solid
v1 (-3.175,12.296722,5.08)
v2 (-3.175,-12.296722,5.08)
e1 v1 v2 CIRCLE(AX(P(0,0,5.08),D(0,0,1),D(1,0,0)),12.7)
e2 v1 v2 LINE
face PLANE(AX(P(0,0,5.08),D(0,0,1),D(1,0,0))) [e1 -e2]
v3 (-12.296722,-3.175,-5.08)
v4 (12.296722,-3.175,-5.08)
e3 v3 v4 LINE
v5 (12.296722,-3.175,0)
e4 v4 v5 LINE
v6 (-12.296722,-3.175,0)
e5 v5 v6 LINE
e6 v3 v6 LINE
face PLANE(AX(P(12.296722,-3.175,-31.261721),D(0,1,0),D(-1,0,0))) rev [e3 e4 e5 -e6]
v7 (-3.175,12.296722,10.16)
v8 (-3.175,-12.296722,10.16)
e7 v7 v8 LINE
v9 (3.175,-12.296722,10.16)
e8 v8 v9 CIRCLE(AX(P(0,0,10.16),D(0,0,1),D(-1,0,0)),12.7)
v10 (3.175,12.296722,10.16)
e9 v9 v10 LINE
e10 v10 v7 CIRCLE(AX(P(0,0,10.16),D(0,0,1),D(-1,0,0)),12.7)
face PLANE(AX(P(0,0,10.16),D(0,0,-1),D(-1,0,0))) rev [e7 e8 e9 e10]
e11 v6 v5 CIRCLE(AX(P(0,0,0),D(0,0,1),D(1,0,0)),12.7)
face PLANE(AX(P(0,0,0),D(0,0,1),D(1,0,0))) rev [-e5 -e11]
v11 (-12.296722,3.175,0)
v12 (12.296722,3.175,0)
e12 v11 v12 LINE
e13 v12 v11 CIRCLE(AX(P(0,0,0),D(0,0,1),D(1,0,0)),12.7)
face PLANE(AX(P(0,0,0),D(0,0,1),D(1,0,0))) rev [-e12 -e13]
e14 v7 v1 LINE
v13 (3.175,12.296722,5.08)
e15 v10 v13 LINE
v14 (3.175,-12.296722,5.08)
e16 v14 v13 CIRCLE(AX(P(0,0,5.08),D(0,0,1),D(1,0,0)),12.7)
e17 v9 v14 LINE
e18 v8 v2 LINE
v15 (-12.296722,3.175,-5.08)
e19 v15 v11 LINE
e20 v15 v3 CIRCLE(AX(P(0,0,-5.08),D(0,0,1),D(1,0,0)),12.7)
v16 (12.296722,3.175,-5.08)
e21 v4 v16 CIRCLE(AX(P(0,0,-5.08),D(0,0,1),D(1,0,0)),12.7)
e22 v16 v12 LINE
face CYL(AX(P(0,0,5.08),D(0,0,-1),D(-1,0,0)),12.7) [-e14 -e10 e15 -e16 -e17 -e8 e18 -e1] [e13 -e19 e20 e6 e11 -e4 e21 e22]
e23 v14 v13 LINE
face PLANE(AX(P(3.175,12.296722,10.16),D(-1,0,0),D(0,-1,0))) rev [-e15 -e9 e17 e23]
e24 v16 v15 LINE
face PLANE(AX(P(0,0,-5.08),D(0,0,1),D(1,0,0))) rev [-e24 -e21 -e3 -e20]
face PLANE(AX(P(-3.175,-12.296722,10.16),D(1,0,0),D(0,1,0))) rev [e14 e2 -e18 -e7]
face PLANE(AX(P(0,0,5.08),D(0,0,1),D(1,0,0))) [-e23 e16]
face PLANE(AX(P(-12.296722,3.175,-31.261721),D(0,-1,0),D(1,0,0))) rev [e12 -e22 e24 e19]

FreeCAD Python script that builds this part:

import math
import FreeCAD as App
import Part
import Sketcher
Q = App.Units.Quantity

doc = App.newDocument("Part")
body = doc.addObject("PartDesign::Body", "Body")

# Sketch on XY plane
sketch1 = body.newObject("Sketcher::SketchObject", "Sketch")
sketch1.AttachmentSupport = (doc.getObject("XY_Plane"), [""])
sketch1.MapMode = "FlatFace"
sketch1.addGeometry(Part.Circle(App.Vector(0, 0, 0), App.Vector(0, 0, 1), 13), False)
sketch1.addConstraint([
    Sketcher.Constraint("Coincident", 0, 3, -1, 1),
    Sketcher.Constraint("Diameter", 0, Q("1 in")),
])
pad1 = body.newObject("PartDesign::Pad", "Pad")
pad1.Profile = sketch1
pad1.Length = Q("0.2 in")

# Sketch on XY plane
sketch2 = body.newObject("Sketcher::SketchObject", "Sketch001")
sketch2.AttachmentSupport = (doc.getObject("XY_Plane"), [""])
sketch2.MapMode = "FlatFace"
sketch2.AttachmentOffset = App.Placement(App.Vector(0, 0, -0.2 * 25.4), App.Rotation())
sketch2.addGeometry([
    Part.LineSegment(App.Vector(-12, 3, 0), App.Vector(12, 3, 0)),
    Part.ArcOfCircle(Part.Circle(App.Vector(0, 0, 0), App.Vector(0, 0, 1), 13), math.radians(-14), math.radians(14)),
    Part.LineSegment(App.Vector(12, -3, 0), App.Vector(-12, -3, 0)),
    Part.ArcOfCircle(Part.Circle(App.Vector(0, 0, 0), App.Vector(0, 0, 1), 13), math.radians(166), math.radians(194)),
], False)
sketch2.addConstraint([
    Sketcher.Constraint("Coincident", 0, 2, 1, 2),
    Sketcher.Constraint("Coincident", 1, 1, 2, 1),
    Sketcher.Constraint("Coincident", 2, 2, 3, 2),
    Sketcher.Constraint("Coincident", 3, 1, 0, 1),
    Sketcher.Constraint("Horizontal", 0),
    Sketcher.Constraint("Horizontal", 2),
    Sketcher.Constraint("Coincident", 1, 3, -1, 1),
    Sketcher.Constraint("Coincident", 3, 3, -1, 1),
    Sketcher.Constraint("Equal", 1, 3),
    Sketcher.Constraint("Vertical", 0, 2, 1, 1),
    Sketcher.Constraint("Radius", 1, Q("0.5 in")),
    Sketcher.Constraint("DistanceY", 1, 1, 0, 2, Q("0.25 in")),
])
pad2 = body.newObject("PartDesign::Pad", "Pad001")
pad2.Profile = sketch2
pad2.Length = Q("0.2 in")

# Sketch on XY plane
sketch3 = body.newObject("Sketcher::SketchObject", "Sketch002")
sketch3.AttachmentSupport = (doc.getObject("XY_Plane"), [""])
sketch3.MapMode = "FlatFace"
sketch3.AttachmentOffset = App.Placement(App.Vector(0, 0, 0.2 * 25.4), App.Rotation())
sketch3.addGeometry([
    Part.LineSegment(App.Vector(-3, 12, 0), App.Vector(-3, -12, 0)),
    Part.ArcOfCircle(Part.Circle(App.Vector(0, 0, 0), App.Vector(0, 0, 1), 13), math.radians(-104), math.radians(-76)),
    Part.LineSegment(App.Vector(3, -12, 0), App.Vector(3, 12, 0)),
    Part.ArcOfCircle(Part.Circle(App.Vector(0, 0, 0), App.Vector(0, 0, 1), 13), math.radians(76), math.radians(104)),
], False)
sketch3.addConstraint([
    Sketcher.Constraint("Coincident", 0, 2, 1, 1),
    Sketcher.Constraint("Coincident", 1, 2, 2, 1),
    Sketcher.Constraint("Coincident", 2, 2, 3, 1),
    Sketcher.Constraint("Coincident", 3, 2, 0, 1),
    Sketcher.Constraint("Vertical", 0),
    Sketcher.Constraint("Vertical", 2),
    Sketcher.Constraint("Coincident", 1, 3, -1, 1),
    Sketcher.Constraint("Coincident", 3, 3, -1, 1),
    Sketcher.Constraint("Equal", 1, 3),
    Sketcher.Constraint("Horizontal", 0, 2, 1, 2),
    Sketcher.Constraint("Radius", 1, Q("0.5 in")),
    Sketcher.Constraint("DistanceX", 0, 2, 1, 2, Q("0.25 in")),
])
pad3 = body.newObject("PartDesign::Pad", "Pad002")
pad3.Profile = sketch3
pad3.Length = Q("0.2 in")

doc.recompute()
